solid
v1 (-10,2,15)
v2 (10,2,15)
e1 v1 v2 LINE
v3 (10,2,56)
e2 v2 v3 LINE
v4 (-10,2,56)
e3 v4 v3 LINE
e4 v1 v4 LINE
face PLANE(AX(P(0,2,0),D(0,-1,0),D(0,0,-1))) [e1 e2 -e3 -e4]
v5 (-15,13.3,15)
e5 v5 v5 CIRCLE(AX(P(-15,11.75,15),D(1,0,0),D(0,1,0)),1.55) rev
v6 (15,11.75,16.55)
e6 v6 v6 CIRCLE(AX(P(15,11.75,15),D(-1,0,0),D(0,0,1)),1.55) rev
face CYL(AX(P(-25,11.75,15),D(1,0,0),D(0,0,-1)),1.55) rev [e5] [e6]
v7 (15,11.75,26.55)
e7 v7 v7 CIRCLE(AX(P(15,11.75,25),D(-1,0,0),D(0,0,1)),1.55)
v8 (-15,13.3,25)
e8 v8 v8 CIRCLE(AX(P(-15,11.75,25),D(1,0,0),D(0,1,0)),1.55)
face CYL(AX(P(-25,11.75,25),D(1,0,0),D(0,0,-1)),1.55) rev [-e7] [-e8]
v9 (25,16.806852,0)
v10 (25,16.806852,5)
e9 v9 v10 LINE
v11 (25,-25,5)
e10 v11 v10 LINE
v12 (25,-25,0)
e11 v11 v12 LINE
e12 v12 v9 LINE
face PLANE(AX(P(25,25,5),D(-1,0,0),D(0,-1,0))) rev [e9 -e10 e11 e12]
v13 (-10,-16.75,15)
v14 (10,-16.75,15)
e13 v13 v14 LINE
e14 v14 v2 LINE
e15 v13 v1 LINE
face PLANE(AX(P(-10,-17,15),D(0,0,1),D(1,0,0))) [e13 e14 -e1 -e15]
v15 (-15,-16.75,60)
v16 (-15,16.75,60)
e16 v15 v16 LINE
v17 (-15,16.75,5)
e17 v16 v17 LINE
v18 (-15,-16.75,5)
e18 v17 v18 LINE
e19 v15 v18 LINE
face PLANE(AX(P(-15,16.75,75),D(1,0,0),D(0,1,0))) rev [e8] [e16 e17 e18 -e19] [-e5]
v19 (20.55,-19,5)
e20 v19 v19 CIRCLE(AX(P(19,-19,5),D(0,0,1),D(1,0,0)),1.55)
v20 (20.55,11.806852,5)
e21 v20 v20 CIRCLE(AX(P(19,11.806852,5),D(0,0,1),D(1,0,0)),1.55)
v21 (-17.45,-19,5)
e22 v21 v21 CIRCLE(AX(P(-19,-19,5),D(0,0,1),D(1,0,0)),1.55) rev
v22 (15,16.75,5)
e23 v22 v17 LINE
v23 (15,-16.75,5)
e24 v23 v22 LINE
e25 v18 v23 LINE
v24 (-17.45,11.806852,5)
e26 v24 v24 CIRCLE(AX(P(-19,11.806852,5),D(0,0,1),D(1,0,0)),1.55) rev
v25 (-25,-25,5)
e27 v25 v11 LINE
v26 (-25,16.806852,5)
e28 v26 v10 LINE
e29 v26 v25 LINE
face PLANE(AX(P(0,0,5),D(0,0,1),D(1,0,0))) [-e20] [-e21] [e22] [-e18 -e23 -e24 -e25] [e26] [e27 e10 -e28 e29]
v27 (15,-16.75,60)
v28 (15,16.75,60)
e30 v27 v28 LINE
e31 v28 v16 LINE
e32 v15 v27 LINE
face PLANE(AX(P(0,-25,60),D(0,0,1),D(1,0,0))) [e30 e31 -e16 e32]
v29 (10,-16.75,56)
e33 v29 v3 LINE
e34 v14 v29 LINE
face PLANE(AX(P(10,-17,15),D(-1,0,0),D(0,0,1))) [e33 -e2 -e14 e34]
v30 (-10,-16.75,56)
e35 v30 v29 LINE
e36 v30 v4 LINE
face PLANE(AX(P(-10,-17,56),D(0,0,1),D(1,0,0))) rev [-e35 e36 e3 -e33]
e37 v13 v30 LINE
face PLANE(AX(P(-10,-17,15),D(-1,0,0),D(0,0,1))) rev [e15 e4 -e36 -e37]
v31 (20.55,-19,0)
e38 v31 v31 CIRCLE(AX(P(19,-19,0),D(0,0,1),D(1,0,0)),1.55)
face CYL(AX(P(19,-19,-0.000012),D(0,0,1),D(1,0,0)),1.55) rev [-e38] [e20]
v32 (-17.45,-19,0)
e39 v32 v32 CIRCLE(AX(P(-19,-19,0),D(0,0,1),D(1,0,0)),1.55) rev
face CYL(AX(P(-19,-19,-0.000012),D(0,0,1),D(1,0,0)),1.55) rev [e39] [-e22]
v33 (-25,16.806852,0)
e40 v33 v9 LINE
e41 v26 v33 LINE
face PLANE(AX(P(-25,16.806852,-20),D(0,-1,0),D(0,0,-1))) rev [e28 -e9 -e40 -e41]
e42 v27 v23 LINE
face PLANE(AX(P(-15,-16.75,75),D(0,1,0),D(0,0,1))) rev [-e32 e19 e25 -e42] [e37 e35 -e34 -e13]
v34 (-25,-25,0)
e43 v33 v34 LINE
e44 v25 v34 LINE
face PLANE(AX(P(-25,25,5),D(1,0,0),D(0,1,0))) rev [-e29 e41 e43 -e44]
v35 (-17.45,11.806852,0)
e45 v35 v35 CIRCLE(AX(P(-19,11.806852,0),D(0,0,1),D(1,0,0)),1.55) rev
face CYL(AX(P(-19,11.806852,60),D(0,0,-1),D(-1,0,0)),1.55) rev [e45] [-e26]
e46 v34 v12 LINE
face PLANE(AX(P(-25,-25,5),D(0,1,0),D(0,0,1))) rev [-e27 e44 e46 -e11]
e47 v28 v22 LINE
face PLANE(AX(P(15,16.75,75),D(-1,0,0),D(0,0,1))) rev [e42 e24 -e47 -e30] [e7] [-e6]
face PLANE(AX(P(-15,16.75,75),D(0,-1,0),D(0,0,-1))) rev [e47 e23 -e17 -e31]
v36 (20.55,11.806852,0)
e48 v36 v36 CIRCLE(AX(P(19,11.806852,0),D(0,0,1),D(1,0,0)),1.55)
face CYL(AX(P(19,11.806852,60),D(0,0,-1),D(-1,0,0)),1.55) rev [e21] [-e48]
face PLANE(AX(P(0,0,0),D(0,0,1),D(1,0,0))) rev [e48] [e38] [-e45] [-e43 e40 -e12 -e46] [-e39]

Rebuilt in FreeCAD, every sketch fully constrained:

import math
import FreeCAD as App
import Part
import Sketcher
Q = App.Units.Quantity

doc = App.newDocument("Part")
body = doc.addObject("PartDesign::Body", "Body")

sketch1 = body.newObject("Sketcher::SketchObject", "Sketch")
sketch1.AttachmentSupport = (doc.getObject("XY_Plane"), [""])
sketch1.MapMode = "FlatFace"
sketch1.addGeometry([
    Part.LineSegment(App.Vector(-25, 25, 0), App.Vector(-25, -25, 0)),
    Part.LineSegment(App.Vector(-25, -25, 0), App.Vector(25, -25, 0)),
    Part.LineSegment(App.Vector(25, -25, 0), App.Vector(25, 25, 0)),
    Part.LineSegment(App.Vector(25, 25, 0), App.Vector(-25, 25, 0)),
], False)
sketch1.addConstraint([
    Sketcher.Constraint("Coincident", 0, 2, 1, 1),
    Sketcher.Constraint("Coincident", 1, 2, 2, 1),
    Sketcher.Constraint("Coincident", 2, 2, 3, 1),
    Sketcher.Constraint("Coincident", 3, 2, 0, 1),
    Sketcher.Constraint("Vertical", 0),
    Sketcher.Constraint("Horizontal", 1),
    Sketcher.Constraint("Vertical", 2),
    Sketcher.Constraint("Horizontal", 3),
    Sketcher.Constraint("Symmetric", 0, 2, 2, 2, -1, 1),
    Sketcher.Constraint("Equal", 3, 0),
    Sketcher.Constraint("DistanceX", 1, 1, 1, 2, Q("50 mm")),
])
pad1 = body.newObject("PartDesign::Pad", "Pad")
pad1.Profile = sketch1
pad1.Length = 5

sketch2 = body.newObject("Sketcher::SketchObject", "Sketch001")
sketch2.AttachmentSupport = (doc.getObject("XY_Plane"), [""])
sketch2.MapMode = "FlatFace"
sketch2.AttachmentOffset = App.Placement(App.Vector(0, 0, 5), App.Rotation())
sketch2.addGeometry([
    Part.LineSegment(App.Vector(-15, 17, 0), App.Vector(-15, -17, 0)),
    Part.LineSegment(App.Vector(-15, -17, 0), App.Vector(15, -17, 0)),
    Part.LineSegment(App.Vector(15, -17, 0), App.Vector(15, 17, 0)),
    Part.LineSegment(App.Vector(15, 17, 0), App.Vector(-15, 17, 0)),
], False)
sketch2.addConstraint([
    Sketcher.Constraint("Coincident", 0, 2, 1, 1),
    Sketcher.Constraint("Coincident", 1, 2, 2, 1),
    Sketcher.Constraint("Coincident", 2, 2, 3, 1),
    Sketcher.Constraint("Coincident", 3, 2, 0, 1),
    Sketcher.Constraint("Vertical", 0),
    Sketcher.Constraint("Horizontal", 1),
    Sketcher.Constraint("Vertical", 2),
    Sketcher.Constraint("Horizontal", 3),
    Sketcher.Constraint("Symmetric", 0, 2, 2, 2, -1, 1),
    Sketcher.Constraint("DistanceX", 1, 1, 1, 2, Q("30 mm")),
    Sketcher.Constraint("DistanceY", 0, 2, 0, 1, Q("33.5 mm")),
])
pad2 = body.newObject("PartDesign::Pad", "Pad001")
pad2.Profile = sketch2
pad2.Length = 70

sketch3 = body.newObject("Sketcher::SketchObject", "Sketch002")
sketch3.AttachmentSupport = (doc.getObject("XZ_Plane"), [""])
sketch3.MapMode = "FlatFace"
sketch3.AttachmentOffset = App.Placement(App.Vector(0, 0, -2), App.Rotation())
sketch3.addGeometry([
    Part.LineSegment(App.Vector(-10, 15, 0), App.Vector(-10, 56, 0)),
    Part.LineSegment(App.Vector(-10, 56, 0), App.Vector(10, 56, 0)),
    Part.LineSegment(App.Vector(10, 56, 0), App.Vector(10, 15, 0)),
    Part.LineSegment(App.Vector(10, 15, 0), App.Vector(-10, 15, 0)),
], False)
sketch3.addConstraint([
    Sketcher.Constraint("Coincident", 0, 2, 1, 1),
    Sketcher.Constraint("Coincident", 1, 2, 2, 1),
    Sketcher.Constraint("Coincident", 2, 2, 3, 1),
    Sketcher.Constraint("Coincident", 3, 2, 0, 1),
    Sketcher.Constraint("Vertical", 0),
    Sketcher.Constraint("Horizontal", 1),
    Sketcher.Constraint("Vertical", 2),
    Sketcher.Constraint("Horizontal", 3),
    Sketcher.Constraint("DistanceX", 1, 1, 1, 2, Q("20 mm")),
    Sketcher.Constraint("DistanceY", 0, 1, 0, 2, Q("41 mm")),
    Sketcher.Constraint("DistanceX", 0, 2, -1, 1, Q("10 mm")),
    Sketcher.Constraint("DistanceY", -1, 1, 0, 2, Q("56 mm")),
])
pocket1 = body.newObject("PartDesign::Pocket", "Pocket")
pocket1.Profile = sketch3
pocket1.Length = 19
pocket1.Reversed = True

sketch4 = body.newObject("Sketcher::SketchObject", "Sketch003")
sketch4.AttachmentSupport = (doc.getObject("XZ_Plane"), [""])
sketch4.MapMode = "FlatFace"
sketch4.addGeometry([
    Part.LineSegment(App.Vector(-15, 60, 0), App.Vector(-15, 75, 0)),
    Part.LineSegment(App.Vector(-15, 75, 0), App.Vector(15, 75, 0)),
    Part.LineSegment(App.Vector(15, 75, 0), App.Vector(15, 60, 0)),
    Part.LineSegment(App.Vector(15, 60, 0), App.Vector(-15, 60, 0)),
], False)
sketch4.addConstraint([
    Sketcher.Constraint("Coincident", 0, 2, 1, 1),
    Sketcher.Constraint("Coincident", 1, 2, 2, 1),
    Sketcher.Constraint("Coincident", 2, 2, 3, 1),
    Sketcher.Constraint("Coincident", 3, 2, 0, 1),
    Sketcher.Constraint("Vertical", 0),
    Sketcher.Constraint("Horizontal", 1),
    Sketcher.Constraint("Vertical", 2),
    Sketcher.Constraint("Horizontal", 3),
    Sketcher.Constraint("DistanceX", 1, 1, 1, 2, Q("30 mm")),
    Sketcher.Constraint("DistanceY", 0, 1, 0, 2, Q("15 mm")),
    Sketcher.Constraint("DistanceX", 0, 2, -1, 1, Q("15 mm")),
    Sketcher.Constraint("DistanceY", -1, 1, 0, 2, Q("75 mm")),
])
pocket2 = body.newObject("PartDesign::Pocket", "Pocket001")
pocket2.Profile = sketch4
pocket2.Type = "ThroughAll"
pocket2.Midplane = True

sketch5 = body.newObject("Sketcher::SketchObject", "Sketch004")
sketch5.AttachmentSupport = (doc.getObject("YZ_Plane"), [""])
sketch5.MapMode = "FlatFace"
sketch5.addGeometry([
    Part.Circle(App.Vector(11.8, 25, 0), App.Vector(0, 0, 1), 1.6),
    Part.Circle(App.Vector(11.8, 15, 0), App.Vector(0, 0, 1), 1.6),
], False)
sketch5.addConstraint([
    Sketcher.Constraint("Equal", 0, 1),
    Sketcher.Constraint("Vertical", 0, 3, 1, 3),
    Sketcher.Constraint("Diameter", 0, Q("3.1 mm")),
    Sketcher.Constraint("DistanceY", -1, 1, 0, 3, Q("25 mm")),
    Sketcher.Constraint("DistanceY", -1, 1, 1, 3, Q("15 mm")),
    Sketcher.Constraint("DistanceX", -1, 1, 0, 3, Q("11.75 mm")),
])
pocket3 = body.newObject("PartDesign::Pocket", "Pocket002")
pocket3.Profile = sketch5
pocket3.Type = "ThroughAll"
pocket3.Midplane = True

sketch6 = body.newObject("Sketcher::SketchObject", "Sketch005")
sketch6.AttachmentSupport = (doc.getObject("XY_Plane"), [""])
sketch6.MapMode = "FlatFace"
sketch6.addGeometry([
    Part.LineSegment(App.Vector(-20.1, 20.1, 0), App.Vector(-17.9, 17.9, 0)),
    Part.ArcOfCircle(Part.Circle(App.Vector(-19, 19, 0), App.Vector(0, 0, 1), 1.6), math.radians(-45), math.radians(135)),
    Part.Circle(App.Vector(19, 19, 0), App.Vector(0, 0, 1), 1.6),
    Part.Circle(App.Vector(19, -19, 0), App.Vector(0, 0, 1), 1.6),
    Part.Circle(App.Vector(-19, -19, 0), App.Vector(0, 0, 1), 1.6),
], False)
sketch6.addConstraint([
    Sketcher.Constraint("Coincident", 0, 1, 1, 2),
    Sketcher.Constraint("Coincident", 1, 1, 0, 2),
    Sketcher.Constraint("Equal", 1, 2),
    Sketcher.Constraint("Equal", 2, 3),
    Sketcher.Constraint("Equal", 3, 4),
    Sketcher.Constraint("Symmetric", 1, 3, 3, 3, -1, 1),
    Sketcher.Constraint("Symmetric", 2, 3, 4, 3, -1, 1),
    Sketcher.Constraint("Symmetric", 1, 3, 2, 3, -2),
    Sketcher.Constraint("Diameter", 2, Q("3.1 mm")),
    Sketcher.Constraint("Angle", 0, Q("-45 deg")),
    Sketcher.Constraint("DistanceX", 1, 3, -1, 1, Q("19 mm")),
    Sketcher.Constraint("DistanceY", -1, 1, 1, 3, Q("19 mm")),
    Sketcher.Constraint("DistanceX", 0, 1, -1, 1, Q("20.096016 mm")),
])
pocket4 = body.newObject("PartDesign::Pocket", "Pocket003")
pocket4.Profile = sketch6
pocket4.Type = "ThroughAll"
pocket4.Midplane = True

sketch7 = body.newObject("Sketcher::SketchObject", "Sketch006")
sketch7.AttachmentSupport = (doc.getObject("XY_Plane"), [""])
sketch7.MapMode = "FlatFace"
sketch7.AttachmentOffset = App.Placement(App.Vector(0, 0, 5), App.Rotation())
sketch7.addGeometry([
    Part.LineSegment(App.Vector(-25, 25, 0), App.Vector(-25, 17, 0)),
    Part.LineSegment(App.Vector(-25, 17, 0), App.Vector(25, 17, 0)),
    Part.LineSegment(App.Vector(25, 17, 0), App.Vector(25, 25, 0)),
    Part.LineSegment(App.Vector(25, 25, 0), App.Vector(-25, 25, 0)),
], False)
sketch7.addConstraint([
    Sketcher.Constraint("Coincident", 0, 2, 1, 1),
    Sketcher.Constraint("Coincident", 1, 2, 2, 1),
    Sketcher.Constraint("Coincident", 2, 2, 3, 1),
    Sketcher.Constraint("Coincident", 3, 2, 0, 1),
    Sketcher.Constraint("Vertical", 0),
    Sketcher.Constraint("Horizontal", 1),
    Sketcher.Constraint("Vertical", 2),
    Sketcher.Constraint("Horizontal", 3),
    Sketcher.Constraint("DistanceX", 1, 1, 1, 2, Q("50 mm")),
    Sketcher.Constraint("DistanceX", 0, 2, -1, 1, Q("25 mm")),
    Sketcher.Constraint("DistanceY", -1, 1, 2, 2, Q("25 mm")),
    Sketcher.Constraint("DistanceY", 0, 2, 0, 1, Q("8.193148 mm")),
])
pocket5 = body.newObject("PartDesign::Pocket", "Pocket004")
pocket5.Profile = sketch7
pocket5.Length = 25

sketch8 = body.newObject("Sketcher::SketchObject", "Sketch007")
sketch8.AttachmentSupport = (doc.getObject("XY_Plane"), [""])
sketch8.MapMode = "FlatFace"
sketch8.addGeometry([
    Part.Circle(App.Vector(-19, 11.8, 0), App.Vector(0, 0, 1), 1.6),
    Part.Circle(App.Vector(19, 11.8, 0), App.Vector(0, 0, 1), 1.6),
], False)
sketch8.addConstraint([
    Sketcher.Constraint("Equal", 0, 1),
    Sketcher.Constraint("Symmetric", 0, 3, 1, 3, -2),
    Sketcher.Constraint("Diameter", 0, Q("3.1 mm")),
    Sketcher.Constraint("DistanceX", 0, 3, -1, 1, Q("19 mm")),
    Sketcher.Constraint("DistanceY", -1, 1, 0, 3, Q("11.806852 mm")),
])
pocket6 = body.newObject("PartDesign::Pocket", "Pocket005")
pocket6.Profile = sketch8
pocket6.Type = "ThroughAll"
pocket6.Midplane = True

doc.recompute()
